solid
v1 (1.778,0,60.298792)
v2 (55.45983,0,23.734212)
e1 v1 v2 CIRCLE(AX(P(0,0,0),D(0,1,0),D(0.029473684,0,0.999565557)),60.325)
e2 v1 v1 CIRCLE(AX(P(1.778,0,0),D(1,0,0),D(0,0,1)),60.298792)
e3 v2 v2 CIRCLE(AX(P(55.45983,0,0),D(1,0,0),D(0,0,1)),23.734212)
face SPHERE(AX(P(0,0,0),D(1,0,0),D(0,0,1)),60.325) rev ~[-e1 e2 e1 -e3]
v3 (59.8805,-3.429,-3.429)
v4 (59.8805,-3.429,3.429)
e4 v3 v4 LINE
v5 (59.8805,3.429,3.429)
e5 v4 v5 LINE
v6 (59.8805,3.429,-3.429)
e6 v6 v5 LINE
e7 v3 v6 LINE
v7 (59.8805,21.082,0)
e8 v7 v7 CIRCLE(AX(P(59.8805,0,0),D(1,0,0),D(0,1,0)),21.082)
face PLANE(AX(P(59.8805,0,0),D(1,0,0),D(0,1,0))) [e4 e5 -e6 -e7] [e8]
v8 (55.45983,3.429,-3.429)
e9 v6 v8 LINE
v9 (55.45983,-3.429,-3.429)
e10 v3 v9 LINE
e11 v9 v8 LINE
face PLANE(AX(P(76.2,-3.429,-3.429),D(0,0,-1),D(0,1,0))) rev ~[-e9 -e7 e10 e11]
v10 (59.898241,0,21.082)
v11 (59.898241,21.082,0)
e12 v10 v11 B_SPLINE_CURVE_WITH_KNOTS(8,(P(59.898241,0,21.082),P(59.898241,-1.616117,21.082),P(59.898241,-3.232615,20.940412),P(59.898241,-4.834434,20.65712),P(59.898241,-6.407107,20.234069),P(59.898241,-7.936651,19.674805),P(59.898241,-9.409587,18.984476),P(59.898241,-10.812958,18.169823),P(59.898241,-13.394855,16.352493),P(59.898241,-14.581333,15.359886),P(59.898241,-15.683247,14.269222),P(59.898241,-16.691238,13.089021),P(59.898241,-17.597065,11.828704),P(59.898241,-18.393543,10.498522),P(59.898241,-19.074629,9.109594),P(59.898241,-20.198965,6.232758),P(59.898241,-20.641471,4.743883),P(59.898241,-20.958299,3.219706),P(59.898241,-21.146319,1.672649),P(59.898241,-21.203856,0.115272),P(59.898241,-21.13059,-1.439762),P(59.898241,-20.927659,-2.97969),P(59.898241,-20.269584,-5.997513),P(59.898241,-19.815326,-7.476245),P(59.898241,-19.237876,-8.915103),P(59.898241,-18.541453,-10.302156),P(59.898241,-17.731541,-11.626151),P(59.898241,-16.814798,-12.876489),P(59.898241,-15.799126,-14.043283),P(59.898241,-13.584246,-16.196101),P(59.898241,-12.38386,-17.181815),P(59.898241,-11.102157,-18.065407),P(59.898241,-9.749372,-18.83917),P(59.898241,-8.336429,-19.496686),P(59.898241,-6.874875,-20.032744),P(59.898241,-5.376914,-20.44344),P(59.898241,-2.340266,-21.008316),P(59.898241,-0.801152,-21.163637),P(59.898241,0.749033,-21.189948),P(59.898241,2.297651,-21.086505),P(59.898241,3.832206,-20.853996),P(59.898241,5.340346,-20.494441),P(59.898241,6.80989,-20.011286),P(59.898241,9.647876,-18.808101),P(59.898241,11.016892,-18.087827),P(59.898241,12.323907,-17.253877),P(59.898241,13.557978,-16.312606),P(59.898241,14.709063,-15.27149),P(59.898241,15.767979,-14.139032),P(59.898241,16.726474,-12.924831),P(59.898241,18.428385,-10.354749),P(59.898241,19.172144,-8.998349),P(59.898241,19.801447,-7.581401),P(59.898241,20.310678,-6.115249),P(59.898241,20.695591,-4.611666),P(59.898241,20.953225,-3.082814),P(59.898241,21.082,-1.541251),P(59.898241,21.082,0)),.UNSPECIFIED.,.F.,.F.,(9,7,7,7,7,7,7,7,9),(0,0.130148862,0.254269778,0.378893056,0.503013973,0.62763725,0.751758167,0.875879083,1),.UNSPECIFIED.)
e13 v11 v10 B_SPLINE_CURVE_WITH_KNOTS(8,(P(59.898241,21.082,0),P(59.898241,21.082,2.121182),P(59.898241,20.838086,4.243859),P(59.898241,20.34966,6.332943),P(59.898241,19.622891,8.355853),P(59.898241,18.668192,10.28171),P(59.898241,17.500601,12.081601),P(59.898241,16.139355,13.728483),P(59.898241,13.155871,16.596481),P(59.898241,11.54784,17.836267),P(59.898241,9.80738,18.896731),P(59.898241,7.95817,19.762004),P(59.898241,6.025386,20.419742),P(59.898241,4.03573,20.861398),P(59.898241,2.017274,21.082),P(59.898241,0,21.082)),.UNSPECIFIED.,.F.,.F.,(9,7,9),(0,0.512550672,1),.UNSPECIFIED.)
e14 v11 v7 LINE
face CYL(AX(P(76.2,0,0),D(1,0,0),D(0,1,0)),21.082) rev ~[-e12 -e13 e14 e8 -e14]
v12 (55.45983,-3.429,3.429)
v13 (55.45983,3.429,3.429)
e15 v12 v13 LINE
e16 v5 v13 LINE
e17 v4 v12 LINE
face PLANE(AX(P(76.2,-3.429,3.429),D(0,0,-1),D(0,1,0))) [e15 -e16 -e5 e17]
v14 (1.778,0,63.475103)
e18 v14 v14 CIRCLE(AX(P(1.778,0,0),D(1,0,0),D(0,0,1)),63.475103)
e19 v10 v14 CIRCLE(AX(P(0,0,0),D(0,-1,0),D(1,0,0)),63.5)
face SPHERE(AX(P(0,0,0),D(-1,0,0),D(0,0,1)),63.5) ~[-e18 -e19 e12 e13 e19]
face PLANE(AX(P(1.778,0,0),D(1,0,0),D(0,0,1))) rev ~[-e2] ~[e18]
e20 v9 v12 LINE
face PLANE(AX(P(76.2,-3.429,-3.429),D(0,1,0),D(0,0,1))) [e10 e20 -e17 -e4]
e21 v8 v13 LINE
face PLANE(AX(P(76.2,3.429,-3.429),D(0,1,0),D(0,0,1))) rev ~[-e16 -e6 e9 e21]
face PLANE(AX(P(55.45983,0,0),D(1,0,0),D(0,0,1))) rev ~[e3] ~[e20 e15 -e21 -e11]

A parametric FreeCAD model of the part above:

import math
import FreeCAD as App
import Part
import Sketcher

V = App.Vector
Q = App.Units.Quantity

doc = App.newDocument("Part")
params = doc.addObject("Spreadsheet::Sheet", "Params")
for row, (alias, value) in enumerate([
    ("sketch1_radius", "2.5 in"),
    ("sketch1_radius2", "2.375 in"),
    ("revolution_angle", "360 deg"),
    ("sketch2_diameter", "1.66 in"),
    ("sketch2_width", "0.27 in"),
    ("pocket1_length", "0.6425 in"),
    ("sketch3_width", "0.27 in"),
    ("pocket2_length", "2.14 in"),
], start=1):
    params.set(f"A{row}", alias)
    params.set(f"B{row}", "=" + value)
    params.setAlias(f"B{row}", alias)

body = doc.addObject("PartDesign::Body", "Body")

# Sketch on XZ plane
sketch1 = doc.addObject("Sketcher::SketchObject", "Sketch")
body.addObject(sketch1)
sketch1.AttachmentSupport = (doc.XZ_Plane, [""])
sketch1.MapMode = "FlatFace"
sketch1.addGeometry([
    Part.ArcOfCircle(Part.Circle(V(0, 0, 0), V(0, 0, 1), 63.5), math.radians(0), math.radians(88)),  # 0
    Part.LineSegment(V(1.8, 63.5, 0), V(1.8, 60.3, 0)),  # 1
    Part.ArcOfCircle(Part.Circle(V(0, 0, 0), V(0, 0, 1), 60.3), math.radians(23), math.radians(88)),  # 2
    Part.LineSegment(V(55.5, 23.7, 0), V(55.5, 0, 0)),  # 3
    Part.LineSegment(V(55.5, 0, 0), V(63.5, 0, 0)),  # 4
], False)
sketch1.addConstraint([
    Sketcher.Constraint("Coincident", 0, 2, 1, 1),
    Sketcher.Constraint("Coincident", 1, 2, 2, 2),
    Sketcher.Constraint("Coincident", 2, 1, 3, 1),
    Sketcher.Constraint("Coincident", 3, 2, 4, 1),
    Sketcher.Constraint("Coincident", 4, 2, 0, 1),
    Sketcher.Constraint("Vertical", 1),
    Sketcher.Constraint("Vertical", 3),
    Sketcher.Constraint("Horizontal", 4),
    Sketcher.Constraint("Coincident", 0, 3, -1, 1),
    Sketcher.Constraint("Coincident", 2, 3, -1, 1),
    Sketcher.Constraint("PointOnObject", 3, 2, -1),
    Sketcher.Constraint("Radius", 0, Q("2.5 in")),
    Sketcher.Constraint("Radius", 2, Q("2.375 in")),
    Sketcher.Constraint("DistanceX", -1, 1, 0, 2, Q("0.07 in")),
    Sketcher.Constraint("DistanceX", 4, 1, 4, 2, Q("8.04017 mm")),
])
sketch1.setExpression("Constraints[11]", "Params.sketch1_radius")
sketch1.setExpression("Constraints[12]", "Params.sketch1_radius2")
revolution = doc.addObject("PartDesign::Revolution", "Revolution")
body.addObject(revolution)
revolution.Profile = sketch1
revolution.ReferenceAxis = (sketch1, ["H_Axis"])
revolution.setExpression("Angle", "Params.revolution_angle")

# Sketch on YZ plane
sketch2 = doc.addObject("Sketcher::SketchObject", "Sketch001")
body.addObject(sketch2)
sketch2.AttachmentSupport = (doc.YZ_Plane, [""])
sketch2.MapMode = "FlatFace"
sketch2.AttachmentOffset = App.Placement(V(0, 0, 3 * 25.4), App.Rotation())
sketch2.addGeometry([
    Part.Circle(V(0, 0, 0), V(0, 0, 1), 21),  # 0
    Part.LineSegment(V(3, -3, 0), V(-3, -3, 0)),  # 1
    Part.LineSegment(V(-3, -3, 0), V(-3, 3, 0)),  # 2
    Part.LineSegment(V(-3, 3, 0), V(3, 3, 0)),  # 3
    Part.LineSegment(V(3, 3, 0), V(3, -3, 0)),  # 4
], False)
sketch2.addConstraint([
    Sketcher.Constraint("Coincident", 1, 2, 2, 1),
    Sketcher.Constraint("Coincident", 2, 2, 3, 1),
    Sketcher.Constraint("Coincident", 3, 2, 4, 1),
    Sketcher.Constraint("Coincident", 4, 2, 1, 1),
    Sketcher.Constraint("Horizontal", 1),
    Sketcher.Constraint("Vertical", 2),
    Sketcher.Constraint("Horizontal", 3),
    Sketcher.Constraint("Vertical", 4),
    Sketcher.Constraint("Coincident", 0, 3, -1, 1),
    Sketcher.Constraint("Symmetric", 1, 2, 3, 2, -1, 1),
    Sketcher.Constraint("Equal", 3, 2),
    Sketcher.Constraint("Diameter", 0, Q("1.66 in")),
    Sketcher.Constraint("DistanceX", 1, 2, 1, 1, Q("0.27 in")),
])
sketch2.setExpression("Constraints[11]", "Params.sketch2_diameter")
sketch2.setExpression("Constraints[12]", "Params.sketch2_width")
pocket1 = doc.addObject("PartDesign::Pocket", "Pocket")
body.addObject(pocket1)
pocket1.Profile = sketch2
pocket1.setExpression("Length", "Params.pocket1_length")

# Sketch on YZ plane
sketch3 = doc.addObject("Sketcher::SketchObject", "Sketch002")
body.addObject(sketch3)
sketch3.AttachmentSupport = (doc.YZ_Plane, [""])
sketch3.MapMode = "FlatFace"
sketch3.AttachmentOffset = App.Placement(V(0, 0, 3 * 25.4), App.Rotation())
sketch3.addGeometry([
    Part.LineSegment(V(-3, 3, 0), V(-3, -3, 0)),
    Part.LineSegment(V(-3, -3, 0), V(3, -3, 0)),
    Part.LineSegment(V(3, -3, 0), V(3, 3, 0)),
    Part.LineSegment(V(3, 3, 0), V(-3, 3, 0)),
], False)
sketch3.addConstraint([
    Sketcher.Constraint("Coincident", 0, 2, 1, 1),
    Sketcher.Constraint("Coincident", 1, 2, 2, 1),
    Sketcher.Constraint("Coincident", 2, 2, 3, 1),
    Sketcher.Constraint("Coincident", 3, 2, 0, 1),
    Sketcher.Constraint("Vertical", 0),
    Sketcher.Constraint("Horizontal", 1),
    Sketcher.Constraint("Vertical", 2),
    Sketcher.Constraint("Horizontal", 3),
    Sketcher.Constraint("Symmetric", 0, 2, 2, 2, -1, 1),
    Sketcher.Constraint("Equal", 3, 0),
    Sketcher.Constraint("DistanceX", 1, 1, 1, 2, Q("0.27 in")),
])
sketch3.setExpression("Constraints[10]", "Params.sketch3_width")
pocket2 = doc.addObject("PartDesign::Pocket", "Pocket001")
body.addObject(pocket2)
pocket2.Profile = sketch3
pocket2.setExpression("Length", "Params.pocket2_length")

doc.recompute()
